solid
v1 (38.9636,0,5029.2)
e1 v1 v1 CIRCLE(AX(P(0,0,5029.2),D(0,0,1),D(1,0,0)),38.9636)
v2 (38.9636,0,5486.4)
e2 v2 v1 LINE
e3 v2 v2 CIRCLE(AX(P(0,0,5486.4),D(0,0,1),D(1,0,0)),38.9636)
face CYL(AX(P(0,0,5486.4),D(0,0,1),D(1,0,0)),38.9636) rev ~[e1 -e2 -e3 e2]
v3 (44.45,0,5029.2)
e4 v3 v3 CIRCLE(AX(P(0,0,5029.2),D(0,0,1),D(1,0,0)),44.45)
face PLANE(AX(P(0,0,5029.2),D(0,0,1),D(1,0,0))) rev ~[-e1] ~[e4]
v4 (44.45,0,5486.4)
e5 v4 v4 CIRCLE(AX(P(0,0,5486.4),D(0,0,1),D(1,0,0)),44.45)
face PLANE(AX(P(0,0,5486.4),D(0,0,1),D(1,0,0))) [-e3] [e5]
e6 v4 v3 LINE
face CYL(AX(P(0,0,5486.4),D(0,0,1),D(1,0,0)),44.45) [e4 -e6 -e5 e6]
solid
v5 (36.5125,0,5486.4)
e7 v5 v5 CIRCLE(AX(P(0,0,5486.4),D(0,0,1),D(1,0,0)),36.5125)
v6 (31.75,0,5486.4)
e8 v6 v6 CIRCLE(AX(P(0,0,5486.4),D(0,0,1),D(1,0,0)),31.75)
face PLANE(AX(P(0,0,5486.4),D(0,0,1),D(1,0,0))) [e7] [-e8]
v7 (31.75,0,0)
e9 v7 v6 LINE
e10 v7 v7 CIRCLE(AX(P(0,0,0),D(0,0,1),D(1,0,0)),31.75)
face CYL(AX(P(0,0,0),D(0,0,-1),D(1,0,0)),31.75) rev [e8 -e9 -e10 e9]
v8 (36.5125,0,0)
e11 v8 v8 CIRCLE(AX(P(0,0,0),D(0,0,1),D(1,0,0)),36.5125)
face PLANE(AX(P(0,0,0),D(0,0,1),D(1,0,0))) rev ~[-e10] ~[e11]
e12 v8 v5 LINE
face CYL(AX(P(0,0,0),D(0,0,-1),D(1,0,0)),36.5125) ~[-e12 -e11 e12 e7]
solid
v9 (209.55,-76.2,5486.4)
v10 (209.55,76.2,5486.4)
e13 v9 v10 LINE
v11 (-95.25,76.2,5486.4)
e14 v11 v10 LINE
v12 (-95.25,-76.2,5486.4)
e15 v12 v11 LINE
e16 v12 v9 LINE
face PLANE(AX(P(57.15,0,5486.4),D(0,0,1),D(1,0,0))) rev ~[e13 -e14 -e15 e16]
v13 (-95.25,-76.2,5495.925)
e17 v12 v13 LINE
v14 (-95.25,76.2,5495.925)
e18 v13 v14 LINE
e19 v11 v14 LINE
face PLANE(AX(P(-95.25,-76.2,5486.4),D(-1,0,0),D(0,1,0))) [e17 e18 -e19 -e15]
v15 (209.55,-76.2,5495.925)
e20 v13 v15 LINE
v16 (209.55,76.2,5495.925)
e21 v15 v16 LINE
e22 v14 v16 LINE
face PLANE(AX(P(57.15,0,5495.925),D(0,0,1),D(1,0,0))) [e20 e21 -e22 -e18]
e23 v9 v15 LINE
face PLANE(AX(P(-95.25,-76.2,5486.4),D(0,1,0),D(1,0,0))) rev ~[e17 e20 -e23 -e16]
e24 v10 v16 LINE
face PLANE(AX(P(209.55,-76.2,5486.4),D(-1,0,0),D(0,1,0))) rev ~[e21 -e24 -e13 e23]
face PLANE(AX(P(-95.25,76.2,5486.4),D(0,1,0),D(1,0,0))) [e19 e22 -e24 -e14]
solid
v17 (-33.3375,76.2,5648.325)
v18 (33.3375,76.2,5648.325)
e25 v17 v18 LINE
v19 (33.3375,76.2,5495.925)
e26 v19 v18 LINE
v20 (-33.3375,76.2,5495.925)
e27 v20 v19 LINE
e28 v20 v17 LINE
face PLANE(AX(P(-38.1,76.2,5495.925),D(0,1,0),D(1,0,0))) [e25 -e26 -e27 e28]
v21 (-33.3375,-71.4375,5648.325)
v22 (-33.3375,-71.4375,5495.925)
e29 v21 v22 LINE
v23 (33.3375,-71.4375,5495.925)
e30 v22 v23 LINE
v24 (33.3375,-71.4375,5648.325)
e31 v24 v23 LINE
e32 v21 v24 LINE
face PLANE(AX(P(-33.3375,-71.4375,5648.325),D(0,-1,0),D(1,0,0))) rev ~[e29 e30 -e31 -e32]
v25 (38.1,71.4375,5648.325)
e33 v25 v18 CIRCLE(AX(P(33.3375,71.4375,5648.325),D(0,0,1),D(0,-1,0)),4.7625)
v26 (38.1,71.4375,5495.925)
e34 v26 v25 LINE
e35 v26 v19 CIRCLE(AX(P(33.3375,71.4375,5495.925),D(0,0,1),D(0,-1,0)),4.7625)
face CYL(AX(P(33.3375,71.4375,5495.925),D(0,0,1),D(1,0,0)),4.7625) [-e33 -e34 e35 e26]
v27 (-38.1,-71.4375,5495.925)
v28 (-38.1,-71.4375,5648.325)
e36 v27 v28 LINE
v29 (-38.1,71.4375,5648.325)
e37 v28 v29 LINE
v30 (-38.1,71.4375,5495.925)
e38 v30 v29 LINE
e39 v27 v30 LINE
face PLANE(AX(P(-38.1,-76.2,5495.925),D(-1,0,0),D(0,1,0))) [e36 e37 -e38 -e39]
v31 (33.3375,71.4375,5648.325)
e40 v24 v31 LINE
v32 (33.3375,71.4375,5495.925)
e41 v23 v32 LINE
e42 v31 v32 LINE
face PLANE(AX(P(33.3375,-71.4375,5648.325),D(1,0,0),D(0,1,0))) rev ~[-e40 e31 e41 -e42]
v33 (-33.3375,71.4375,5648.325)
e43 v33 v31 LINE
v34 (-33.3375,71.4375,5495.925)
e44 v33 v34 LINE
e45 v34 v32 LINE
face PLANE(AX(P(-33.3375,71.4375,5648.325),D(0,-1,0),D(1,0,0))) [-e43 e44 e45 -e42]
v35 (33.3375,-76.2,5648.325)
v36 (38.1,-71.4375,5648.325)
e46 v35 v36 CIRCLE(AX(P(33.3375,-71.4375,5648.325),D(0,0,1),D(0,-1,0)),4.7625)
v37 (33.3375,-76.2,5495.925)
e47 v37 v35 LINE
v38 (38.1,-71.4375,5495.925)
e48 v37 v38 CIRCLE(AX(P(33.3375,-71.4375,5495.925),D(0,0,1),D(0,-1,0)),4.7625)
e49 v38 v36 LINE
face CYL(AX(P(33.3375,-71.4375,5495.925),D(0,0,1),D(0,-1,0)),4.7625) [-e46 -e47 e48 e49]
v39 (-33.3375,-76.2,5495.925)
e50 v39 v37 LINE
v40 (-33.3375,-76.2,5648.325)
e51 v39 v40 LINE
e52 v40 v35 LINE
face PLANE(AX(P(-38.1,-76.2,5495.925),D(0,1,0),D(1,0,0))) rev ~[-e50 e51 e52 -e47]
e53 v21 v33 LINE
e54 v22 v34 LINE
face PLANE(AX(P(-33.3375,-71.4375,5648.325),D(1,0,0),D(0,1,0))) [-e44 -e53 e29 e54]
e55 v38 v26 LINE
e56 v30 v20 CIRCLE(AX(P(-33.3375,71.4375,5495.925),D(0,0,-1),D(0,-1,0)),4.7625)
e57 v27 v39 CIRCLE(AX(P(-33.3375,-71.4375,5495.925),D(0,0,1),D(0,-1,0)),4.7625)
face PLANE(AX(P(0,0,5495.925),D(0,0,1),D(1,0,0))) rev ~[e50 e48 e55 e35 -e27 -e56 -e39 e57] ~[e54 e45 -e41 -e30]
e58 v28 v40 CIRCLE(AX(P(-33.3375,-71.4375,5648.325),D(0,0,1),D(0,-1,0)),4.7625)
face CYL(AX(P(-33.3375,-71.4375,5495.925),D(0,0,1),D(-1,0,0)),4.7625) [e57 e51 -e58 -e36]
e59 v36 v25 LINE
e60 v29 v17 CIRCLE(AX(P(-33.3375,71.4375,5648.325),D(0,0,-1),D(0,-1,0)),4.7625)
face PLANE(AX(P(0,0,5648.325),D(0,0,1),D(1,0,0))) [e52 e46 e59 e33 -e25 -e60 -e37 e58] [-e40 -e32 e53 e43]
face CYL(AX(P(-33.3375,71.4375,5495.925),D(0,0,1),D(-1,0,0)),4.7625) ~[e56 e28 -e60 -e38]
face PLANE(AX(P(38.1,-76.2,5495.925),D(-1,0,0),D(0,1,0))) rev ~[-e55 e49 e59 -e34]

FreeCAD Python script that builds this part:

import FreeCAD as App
import Part
import Sketcher
Q = App.Units.Quantity


def edges_at(feature, points):
    """Names of the edges that pass closest to the given points."""
    edges = feature.Shape.Edges
    near = lambda p: min(range(len(edges)), key=lambda i: edges[i].distToShape(Part.Vertex(*p))[0])
    return sorted({f"Edge{near(p) + 1}" for p in points})


def add_polygon(sketch, points):
    """Adds a closed chain of lines whose ends are joined by coincident constraints."""
    first, n = sketch.GeometryCount, len(points)
    for a, b in zip(points, points[1:] + points[:1]):
        sketch.addGeometry(Part.LineSegment(App.Vector(*a, 0), App.Vector(*b, 0)), False)
    for i in range(n):
        sketch.addConstraint(Sketcher.Constraint("Coincident", first + i, 2, first + (i + 1) % n, 1))

doc = App.newDocument("Part")
body = doc.addObject("PartDesign::Body", "Body")

sketch1 = body.newObject("Sketcher::SketchObject", "Sketch")
sketch1.AttachmentSupport = (doc.getObject("XY_Plane"), [""])
sketch1.MapMode = "FlatFace"
sketch1.addGeometry([
    Part.Circle(App.Vector(0, 0, 0), App.Vector(0, 0, 1), 37),
    Part.Circle(App.Vector(0, 0, 0), App.Vector(0, 0, 1), 32),
], False)
sketch1.addConstraint([
    Sketcher.Constraint("Coincident", 0, 3, -1, 1),
    Sketcher.Constraint("Coincident", 1, 3, -1, 1),
    Sketcher.Constraint("Diameter", 1, Q("2.5 in")),
    Sketcher.Constraint("Diameter", 0, Q("2.875 in")),
])
pad1 = body.newObject("PartDesign::Pad", "Pad")
pad1.Profile = sketch1
pad1.Length = Q("216 in")
body2 = doc.addObject("PartDesign::Body", "Body001")

sketch2 = body2.newObject("Sketcher::SketchObject", "Sketch001")
sketch2.AttachmentSupport = (doc.getObject("XY_Plane001"), [""])
sketch2.MapMode = "FlatFace"
sketch2.AttachmentOffset = App.Placement(App.Vector(0, 0, 216 * 25.4), App.Rotation())
sketch2.addGeometry([
    Part.Circle(App.Vector(0, 0, 0), App.Vector(0, 0, 1), 44),
    Part.Circle(App.Vector(0, 0, 0), App.Vector(0, 0, 1), 39),
], False)
sketch2.addConstraint([
    Sketcher.Constraint("Coincident", 0, 3, -1, 1),
    Sketcher.Constraint("Coincident", 1, 3, -1, 1),
    Sketcher.Constraint("Diameter", 0, Q("3.5 in")),
    Sketcher.Constraint("Diameter", 1, Q("3.068 in")),
])
pad2 = body2.newObject("PartDesign::Pad", "Pad001")
pad2.Profile = sketch2
pad2.Length = Q("18 in")
pad2.Reversed = True
body3 = doc.addObject("PartDesign::Body", "Body002")

sketch3 = body3.newObject("Sketcher::SketchObject", "Sketch002")
sketch3.AttachmentSupport = (doc.getObject("XY_Plane002"), [""])
sketch3.MapMode = "FlatFace"
sketch3.AttachmentOffset = App.Placement(App.Vector(0, 0, 216 * 25.4), App.Rotation())
add_polygon(sketch3, [(-95, 76), (-95, -76), (210, -76), (210, 76)])
sketch3.addConstraint([
    Sketcher.Constraint("Vertical", 0),
    Sketcher.Constraint("Horizontal", 1),
    Sketcher.Constraint("Vertical", 2),
    Sketcher.Constraint("Horizontal", 3),
    Sketcher.Constraint("DistanceX", 1, 1, 1, 2, Q("12 in")),
    Sketcher.Constraint("DistanceY", 0, 2, 0, 1, Q("6 in")),
    Sketcher.Constraint("DistanceY", 0, 2, -1, 1, Q("3 in")),
    Sketcher.Constraint("DistanceX", 0, 2, -1, 1, Q("3.75 in")),
])
pad3 = body3.newObject("PartDesign::Pad", "Pad002")
pad3.Profile = sketch3
pad3.Length = Q("0.375 in")
body4 = doc.addObject("PartDesign::Body", "Body003")

sketch4 = body4.newObject("Sketcher::SketchObject", "Sketch003")
sketch4.AttachmentSupport = (doc.getObject("XY_Plane003"), [""])
sketch4.MapMode = "FlatFace"
sketch4.AttachmentOffset = App.Placement(App.Vector(0, 0, 216.375 * 25.4), App.Rotation())
add_polygon(sketch4, [(-38, 76), (-38, -76), (38, -76), (38, 76)])
sketch4.addConstraint([
    Sketcher.Constraint("Vertical", 0),
    Sketcher.Constraint("Horizontal", 1),
    Sketcher.Constraint("Vertical", 2),
    Sketcher.Constraint("Horizontal", 3),
    Sketcher.Constraint("Symmetric", 0, 2, 2, 2, -1, 1),
    Sketcher.Constraint("DistanceX", 1, 1, 1, 2, Q("3 in")),
    Sketcher.Constraint("DistanceY", 0, 2, 0, 1, Q("6 in")),
])
pad4 = body4.newObject("PartDesign::Pad", "Pad003")
pad4.Profile = sketch4
pad4.Length = Q("6 in")
doc.recompute()

fillet = body4.newObject("PartDesign::Fillet", "Fillet")
fillet.Base = (pad4, edges_at(pad4, [
    (-38.1, -76.2, 5572.125),
    (38.1, -76.2, 5572.125),
    (-38.1, 76.2, 5572.125),
    (38.1, 76.2, 5572.125),
]))
fillet.Radius = Q("0.1875 in")

sketch5 = body4.newObject("Sketcher::SketchObject", "Sketch004")
sketch5.AttachmentSupport = (doc.getObject("XY_Plane003"), [""])
sketch5.MapMode = "FlatFace"
sketch5.AttachmentOffset = App.Placement(App.Vector(0, 0, 222.375 * 25.4), App.Rotation())
add_polygon(sketch5, [(-33, 71), (-33, -71), (33, -71), (33, 71)])
sketch5.addConstraint([
    Sketcher.Constraint("Vertical", 0),
    Sketcher.Constraint("Horizontal", 1),
    Sketcher.Constraint("Vertical", 2),
    Sketcher.Constraint("Horizontal", 3),
    Sketcher.Constraint("Symmetric", 0, 2, 2, 2, -1, 1),
    Sketcher.Constraint("DistanceX", 1, 1, 1, 2, Q("2.625 in")),
    Sketcher.Constraint("DistanceY", 0, 2, 0, 1, Q("5.625 in")),
])
pocket1 = body4.newObject("PartDesign::Pocket", "Pocket")
pocket1.Profile = sketch5
pocket1.Type = "ThroughAll"

doc.recompute()
